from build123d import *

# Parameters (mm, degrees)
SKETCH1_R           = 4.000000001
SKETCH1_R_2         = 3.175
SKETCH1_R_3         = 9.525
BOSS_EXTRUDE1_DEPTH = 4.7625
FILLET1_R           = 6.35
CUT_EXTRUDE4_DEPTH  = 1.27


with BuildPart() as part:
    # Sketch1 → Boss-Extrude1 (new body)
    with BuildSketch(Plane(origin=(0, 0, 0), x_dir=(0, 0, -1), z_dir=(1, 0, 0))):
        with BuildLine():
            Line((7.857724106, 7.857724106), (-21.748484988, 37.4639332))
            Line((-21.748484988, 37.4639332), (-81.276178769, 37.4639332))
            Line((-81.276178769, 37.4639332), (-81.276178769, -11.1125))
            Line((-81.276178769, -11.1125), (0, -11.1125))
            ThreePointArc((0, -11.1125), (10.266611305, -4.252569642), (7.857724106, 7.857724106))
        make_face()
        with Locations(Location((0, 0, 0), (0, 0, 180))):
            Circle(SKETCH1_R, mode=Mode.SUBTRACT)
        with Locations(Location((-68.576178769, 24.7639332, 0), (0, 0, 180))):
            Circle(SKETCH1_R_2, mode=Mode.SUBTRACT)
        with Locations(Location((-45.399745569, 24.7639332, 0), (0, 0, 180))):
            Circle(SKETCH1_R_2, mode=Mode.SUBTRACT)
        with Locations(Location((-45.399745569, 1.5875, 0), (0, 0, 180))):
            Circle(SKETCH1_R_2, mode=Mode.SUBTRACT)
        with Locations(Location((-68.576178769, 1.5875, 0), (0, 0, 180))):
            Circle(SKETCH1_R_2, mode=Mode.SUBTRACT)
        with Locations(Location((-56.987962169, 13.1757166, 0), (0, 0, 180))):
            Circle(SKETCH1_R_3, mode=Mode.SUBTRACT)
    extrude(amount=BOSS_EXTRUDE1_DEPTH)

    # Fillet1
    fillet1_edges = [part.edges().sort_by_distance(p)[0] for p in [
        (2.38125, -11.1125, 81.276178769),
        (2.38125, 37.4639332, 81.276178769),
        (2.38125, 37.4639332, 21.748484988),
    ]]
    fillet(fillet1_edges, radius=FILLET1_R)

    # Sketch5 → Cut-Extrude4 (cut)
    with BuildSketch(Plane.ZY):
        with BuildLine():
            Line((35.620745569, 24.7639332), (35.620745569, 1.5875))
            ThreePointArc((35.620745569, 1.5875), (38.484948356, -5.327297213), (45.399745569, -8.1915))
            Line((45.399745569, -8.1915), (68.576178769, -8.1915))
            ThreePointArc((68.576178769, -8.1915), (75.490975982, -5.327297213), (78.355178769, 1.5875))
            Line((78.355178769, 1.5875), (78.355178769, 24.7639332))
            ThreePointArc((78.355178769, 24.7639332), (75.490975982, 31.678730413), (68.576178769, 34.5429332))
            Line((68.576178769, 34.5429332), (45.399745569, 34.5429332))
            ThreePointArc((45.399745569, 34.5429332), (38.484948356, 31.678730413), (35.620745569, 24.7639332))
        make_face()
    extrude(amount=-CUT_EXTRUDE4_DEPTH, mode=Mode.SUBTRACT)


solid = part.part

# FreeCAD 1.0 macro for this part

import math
import FreeCAD as App
import Part
import Sketcher

V = App.Vector
Q = App.Units.Quantity


def edges_at(feature, points):
    """Names of the edges that pass closest to the given points."""
    edges = feature.Shape.Edges
    near = lambda p: min(range(len(edges)), key=lambda i: edges[i].distToShape(Part.Vertex(*p))[0])
    return sorted({f"Edge{near(p) + 1}" for p in points})

doc = App.newDocument("Part")
body = doc.addObject("PartDesign::Body", "Body")

sketch1 = doc.addObject("Sketcher::SketchObject", "Sketch")
body.addObject(sketch1)
sketch1.AttachmentSupport = (doc.YZ_Plane, [""])
sketch1.MapMode = "FlatFace"
sketch1.addGeometry([
    Part.LineSegment(V(7.9, -7.9, 0), V(37.5, 21.7, 0)),
    Part.LineSegment(V(37.5, 21.7, 0), V(37.5, 81.3, 0)),
    Part.LineSegment(V(37.5, 81.3, 0), V(-11.1, 81.3, 0)),
    Part.LineSegment(V(-11.1, 81.3, 0), V(-11.1, 0, 0)),
    Part.ArcOfCircle(Part.Circle(V(0, 0, 0), V(0, 0, 1), 11.1), math.radians(180), math.radians(315)),
    Part.Circle(V(1.6, 68.6, 0), V(0, 0, 1), 3.2),
    Part.Circle(V(1.6, 45.4, 0), V(0, 0, 1), 3.2),
    Part.Circle(V(0, 0, 0), V(0, 0, 1), 4),
    Part.Circle(V(13.2, 57, 0), V(0, 0, 1), 9.5),
    Part.Circle(V(24.8, 68.6, 0), V(0, 0, 1), 3.2),
    Part.Circle(V(24.8, 45.4, 0), V(0, 0, 1), 3.2),
], False)
sketch1.addConstraint([
    Sketcher.Constraint("Coincident", 0, 2, 1, 1),
    Sketcher.Constraint("Coincident", 1, 2, 2, 1),
    Sketcher.Constraint("Coincident", 2, 2, 3, 1),
    Sketcher.Constraint("Tangent", 3, 2, 4, 1),
    Sketcher.Constraint("Tangent", 4, 2, 0, 1),
    Sketcher.Constraint("Vertical", 1),
    Sketcher.Constraint("Horizontal", 2),
    Sketcher.Constraint("Vertical", 3),
    Sketcher.Constraint("Coincident", 4, 3, -1, 1),
    Sketcher.Constraint("Coincident", 7, 3, -1, 1),
    Sketcher.Constraint("Equal", 5, 6),
    Sketcher.Constraint("Equal", 6, 9),
    Sketcher.Constraint("Equal", 9, 10),
    Sketcher.Constraint("Horizontal", 5, 3, 9, 3),
    Sketcher.Constraint("Horizontal", 6, 3, 10, 3),
    Sketcher.Constraint("Vertical", 5, 3, 6, 3),
    Sketcher.Constraint("Vertical", 9, 3, 10, 3),
    Sketcher.Constraint("Diameter", 5, Q("0.25 in")),
    Sketcher.Constraint("Diameter", 8, Q("0.75 in")),
    Sketcher.Constraint("Angle", 0, Q("45 deg")),
    Sketcher.Constraint("Radius", 4, Q("0.4375 in")),
    Sketcher.Constraint("DistanceX", 10, 3, 0, 2, Q("0.5 in")),
    Sketcher.Constraint("DistanceY", 9, 3, 1, 2, Q("0.5 in")),
    Sketcher.Constraint("DistanceX", 2, 2, 5, 3, Q("0.5 in")),
    Sketcher.Constraint("Diameter", 7, 8.0),
    Sketcher.Constraint("DistanceY", 3, 2, 3, 1, 81.276179),
    Sketcher.Constraint("DistanceX", 2, 2, 2, 1, 48.576433),
    Sketcher.Constraint("DistanceY", 0, 2, 10, 3, 23.651261),
    Sketcher.Constraint("DistanceX", -1, 1, 8, 3, 13.175717),
    Sketcher.Constraint("DistanceY", -1, 1, 8, 3, 56.987962),
])
pad1 = doc.addObject("PartDesign::Pad", "Pad")
body.addObject(pad1)
pad1.Profile = sketch1
pad1.Length = Q("0.1875 in")
doc.recompute()

fillet = doc.addObject("PartDesign::Fillet", "Fillet")
body.addObject(fillet)
fillet.Base = (pad1, edges_at(pad1, [(2.381, -11.113, 81.276), (2.381, 37.464, 81.276), (2.381, 37.464, 21.748)]))
fillet.Radius = Q("0.25 in")

sketch2 = doc.addObject("Sketcher::SketchObject", "Sketch001")
body.addObject(sketch2)
sketch2.AttachmentSupport = (doc.YZ_Plane, [""])
sketch2.MapMode = "FlatFace"
sketch2.addGeometry([
    Part.LineSegment(V(25, 36, 0), V(2, 36, 0)),
    Part.ArcOfCircle(Part.Circle(V(2, 45, 0), V(0, 0, 1), 10), math.radians(-180), math.radians(-90)),
    Part.LineSegment(V(-8, 45, 0), V(-8, 69, 0)),
    Part.ArcOfCircle(Part.Circle(V(2, 69, 0), V(0, 0, 1), 10), math.radians(90), math.radians(180)),
    Part.LineSegment(V(2, 78, 0), V(25, 78, 0)),
    Part.ArcOfCircle(Part.Circle(V(25, 69, 0), V(0, 0, 1), 10), math.radians(0), math.radians(90)),
    Part.LineSegment(V(35, 69, 0), V(35, 45, 0)),
    Part.ArcOfCircle(Part.Circle(V(25, 45, 0), V(0, 0, 1), 10), math.radians(-90), math.radians(0)),
], False)
sketch2.addConstraint([
    Sketcher.Constraint("Tangent", 0, 2, 1, 2),
    Sketcher.Constraint("Tangent", 1, 1, 2, 1),
    Sketcher.Constraint("Tangent", 2, 2, 3, 2),
    Sketcher.Constraint("Tangent", 3, 1, 4, 1),
    Sketcher.Constraint("Tangent", 4, 2, 5, 2),
    Sketcher.Constraint("Tangent", 5, 1, 6, 1),
    Sketcher.Constraint("Tangent", 6, 2, 7, 2),
    Sketcher.Constraint("Tangent", 7, 1, 0, 1),
    Sketcher.Constraint("Horizontal", 0),
    Sketcher.Constraint("Vertical", 2),
    Sketcher.Constraint("Horizontal", 4),
    Sketcher.Constraint("Vertical", 6),
    Sketcher.Constraint("Equal", 1, 3),
    Sketcher.Constraint("Equal", 3, 5),
    Sketcher.Constraint("Equal", 5, 7),
    Sketcher.Constraint("Equal", 4, 2),
    Sketcher.Constraint("Radius", 1, Q("0.385 in")),
    Sketcher.Constraint("DistanceX", -1, 1, 1, 3, Q("0.0625 in")),
    Sketcher.Constraint("DistanceX", 0, 2, 0, 1, 23.176433),
    Sketcher.Constraint("DistanceY", -1, 1, 3, 3, 68.576179),
])
pocket1 = doc.addObject("PartDesign::Pocket", "Pocket")
body.addObject(pocket1)
pocket1.Profile = sketch2
pocket1.Length = Q("0.05 in")
pocket1.Reversed = True

doc.recompute()
